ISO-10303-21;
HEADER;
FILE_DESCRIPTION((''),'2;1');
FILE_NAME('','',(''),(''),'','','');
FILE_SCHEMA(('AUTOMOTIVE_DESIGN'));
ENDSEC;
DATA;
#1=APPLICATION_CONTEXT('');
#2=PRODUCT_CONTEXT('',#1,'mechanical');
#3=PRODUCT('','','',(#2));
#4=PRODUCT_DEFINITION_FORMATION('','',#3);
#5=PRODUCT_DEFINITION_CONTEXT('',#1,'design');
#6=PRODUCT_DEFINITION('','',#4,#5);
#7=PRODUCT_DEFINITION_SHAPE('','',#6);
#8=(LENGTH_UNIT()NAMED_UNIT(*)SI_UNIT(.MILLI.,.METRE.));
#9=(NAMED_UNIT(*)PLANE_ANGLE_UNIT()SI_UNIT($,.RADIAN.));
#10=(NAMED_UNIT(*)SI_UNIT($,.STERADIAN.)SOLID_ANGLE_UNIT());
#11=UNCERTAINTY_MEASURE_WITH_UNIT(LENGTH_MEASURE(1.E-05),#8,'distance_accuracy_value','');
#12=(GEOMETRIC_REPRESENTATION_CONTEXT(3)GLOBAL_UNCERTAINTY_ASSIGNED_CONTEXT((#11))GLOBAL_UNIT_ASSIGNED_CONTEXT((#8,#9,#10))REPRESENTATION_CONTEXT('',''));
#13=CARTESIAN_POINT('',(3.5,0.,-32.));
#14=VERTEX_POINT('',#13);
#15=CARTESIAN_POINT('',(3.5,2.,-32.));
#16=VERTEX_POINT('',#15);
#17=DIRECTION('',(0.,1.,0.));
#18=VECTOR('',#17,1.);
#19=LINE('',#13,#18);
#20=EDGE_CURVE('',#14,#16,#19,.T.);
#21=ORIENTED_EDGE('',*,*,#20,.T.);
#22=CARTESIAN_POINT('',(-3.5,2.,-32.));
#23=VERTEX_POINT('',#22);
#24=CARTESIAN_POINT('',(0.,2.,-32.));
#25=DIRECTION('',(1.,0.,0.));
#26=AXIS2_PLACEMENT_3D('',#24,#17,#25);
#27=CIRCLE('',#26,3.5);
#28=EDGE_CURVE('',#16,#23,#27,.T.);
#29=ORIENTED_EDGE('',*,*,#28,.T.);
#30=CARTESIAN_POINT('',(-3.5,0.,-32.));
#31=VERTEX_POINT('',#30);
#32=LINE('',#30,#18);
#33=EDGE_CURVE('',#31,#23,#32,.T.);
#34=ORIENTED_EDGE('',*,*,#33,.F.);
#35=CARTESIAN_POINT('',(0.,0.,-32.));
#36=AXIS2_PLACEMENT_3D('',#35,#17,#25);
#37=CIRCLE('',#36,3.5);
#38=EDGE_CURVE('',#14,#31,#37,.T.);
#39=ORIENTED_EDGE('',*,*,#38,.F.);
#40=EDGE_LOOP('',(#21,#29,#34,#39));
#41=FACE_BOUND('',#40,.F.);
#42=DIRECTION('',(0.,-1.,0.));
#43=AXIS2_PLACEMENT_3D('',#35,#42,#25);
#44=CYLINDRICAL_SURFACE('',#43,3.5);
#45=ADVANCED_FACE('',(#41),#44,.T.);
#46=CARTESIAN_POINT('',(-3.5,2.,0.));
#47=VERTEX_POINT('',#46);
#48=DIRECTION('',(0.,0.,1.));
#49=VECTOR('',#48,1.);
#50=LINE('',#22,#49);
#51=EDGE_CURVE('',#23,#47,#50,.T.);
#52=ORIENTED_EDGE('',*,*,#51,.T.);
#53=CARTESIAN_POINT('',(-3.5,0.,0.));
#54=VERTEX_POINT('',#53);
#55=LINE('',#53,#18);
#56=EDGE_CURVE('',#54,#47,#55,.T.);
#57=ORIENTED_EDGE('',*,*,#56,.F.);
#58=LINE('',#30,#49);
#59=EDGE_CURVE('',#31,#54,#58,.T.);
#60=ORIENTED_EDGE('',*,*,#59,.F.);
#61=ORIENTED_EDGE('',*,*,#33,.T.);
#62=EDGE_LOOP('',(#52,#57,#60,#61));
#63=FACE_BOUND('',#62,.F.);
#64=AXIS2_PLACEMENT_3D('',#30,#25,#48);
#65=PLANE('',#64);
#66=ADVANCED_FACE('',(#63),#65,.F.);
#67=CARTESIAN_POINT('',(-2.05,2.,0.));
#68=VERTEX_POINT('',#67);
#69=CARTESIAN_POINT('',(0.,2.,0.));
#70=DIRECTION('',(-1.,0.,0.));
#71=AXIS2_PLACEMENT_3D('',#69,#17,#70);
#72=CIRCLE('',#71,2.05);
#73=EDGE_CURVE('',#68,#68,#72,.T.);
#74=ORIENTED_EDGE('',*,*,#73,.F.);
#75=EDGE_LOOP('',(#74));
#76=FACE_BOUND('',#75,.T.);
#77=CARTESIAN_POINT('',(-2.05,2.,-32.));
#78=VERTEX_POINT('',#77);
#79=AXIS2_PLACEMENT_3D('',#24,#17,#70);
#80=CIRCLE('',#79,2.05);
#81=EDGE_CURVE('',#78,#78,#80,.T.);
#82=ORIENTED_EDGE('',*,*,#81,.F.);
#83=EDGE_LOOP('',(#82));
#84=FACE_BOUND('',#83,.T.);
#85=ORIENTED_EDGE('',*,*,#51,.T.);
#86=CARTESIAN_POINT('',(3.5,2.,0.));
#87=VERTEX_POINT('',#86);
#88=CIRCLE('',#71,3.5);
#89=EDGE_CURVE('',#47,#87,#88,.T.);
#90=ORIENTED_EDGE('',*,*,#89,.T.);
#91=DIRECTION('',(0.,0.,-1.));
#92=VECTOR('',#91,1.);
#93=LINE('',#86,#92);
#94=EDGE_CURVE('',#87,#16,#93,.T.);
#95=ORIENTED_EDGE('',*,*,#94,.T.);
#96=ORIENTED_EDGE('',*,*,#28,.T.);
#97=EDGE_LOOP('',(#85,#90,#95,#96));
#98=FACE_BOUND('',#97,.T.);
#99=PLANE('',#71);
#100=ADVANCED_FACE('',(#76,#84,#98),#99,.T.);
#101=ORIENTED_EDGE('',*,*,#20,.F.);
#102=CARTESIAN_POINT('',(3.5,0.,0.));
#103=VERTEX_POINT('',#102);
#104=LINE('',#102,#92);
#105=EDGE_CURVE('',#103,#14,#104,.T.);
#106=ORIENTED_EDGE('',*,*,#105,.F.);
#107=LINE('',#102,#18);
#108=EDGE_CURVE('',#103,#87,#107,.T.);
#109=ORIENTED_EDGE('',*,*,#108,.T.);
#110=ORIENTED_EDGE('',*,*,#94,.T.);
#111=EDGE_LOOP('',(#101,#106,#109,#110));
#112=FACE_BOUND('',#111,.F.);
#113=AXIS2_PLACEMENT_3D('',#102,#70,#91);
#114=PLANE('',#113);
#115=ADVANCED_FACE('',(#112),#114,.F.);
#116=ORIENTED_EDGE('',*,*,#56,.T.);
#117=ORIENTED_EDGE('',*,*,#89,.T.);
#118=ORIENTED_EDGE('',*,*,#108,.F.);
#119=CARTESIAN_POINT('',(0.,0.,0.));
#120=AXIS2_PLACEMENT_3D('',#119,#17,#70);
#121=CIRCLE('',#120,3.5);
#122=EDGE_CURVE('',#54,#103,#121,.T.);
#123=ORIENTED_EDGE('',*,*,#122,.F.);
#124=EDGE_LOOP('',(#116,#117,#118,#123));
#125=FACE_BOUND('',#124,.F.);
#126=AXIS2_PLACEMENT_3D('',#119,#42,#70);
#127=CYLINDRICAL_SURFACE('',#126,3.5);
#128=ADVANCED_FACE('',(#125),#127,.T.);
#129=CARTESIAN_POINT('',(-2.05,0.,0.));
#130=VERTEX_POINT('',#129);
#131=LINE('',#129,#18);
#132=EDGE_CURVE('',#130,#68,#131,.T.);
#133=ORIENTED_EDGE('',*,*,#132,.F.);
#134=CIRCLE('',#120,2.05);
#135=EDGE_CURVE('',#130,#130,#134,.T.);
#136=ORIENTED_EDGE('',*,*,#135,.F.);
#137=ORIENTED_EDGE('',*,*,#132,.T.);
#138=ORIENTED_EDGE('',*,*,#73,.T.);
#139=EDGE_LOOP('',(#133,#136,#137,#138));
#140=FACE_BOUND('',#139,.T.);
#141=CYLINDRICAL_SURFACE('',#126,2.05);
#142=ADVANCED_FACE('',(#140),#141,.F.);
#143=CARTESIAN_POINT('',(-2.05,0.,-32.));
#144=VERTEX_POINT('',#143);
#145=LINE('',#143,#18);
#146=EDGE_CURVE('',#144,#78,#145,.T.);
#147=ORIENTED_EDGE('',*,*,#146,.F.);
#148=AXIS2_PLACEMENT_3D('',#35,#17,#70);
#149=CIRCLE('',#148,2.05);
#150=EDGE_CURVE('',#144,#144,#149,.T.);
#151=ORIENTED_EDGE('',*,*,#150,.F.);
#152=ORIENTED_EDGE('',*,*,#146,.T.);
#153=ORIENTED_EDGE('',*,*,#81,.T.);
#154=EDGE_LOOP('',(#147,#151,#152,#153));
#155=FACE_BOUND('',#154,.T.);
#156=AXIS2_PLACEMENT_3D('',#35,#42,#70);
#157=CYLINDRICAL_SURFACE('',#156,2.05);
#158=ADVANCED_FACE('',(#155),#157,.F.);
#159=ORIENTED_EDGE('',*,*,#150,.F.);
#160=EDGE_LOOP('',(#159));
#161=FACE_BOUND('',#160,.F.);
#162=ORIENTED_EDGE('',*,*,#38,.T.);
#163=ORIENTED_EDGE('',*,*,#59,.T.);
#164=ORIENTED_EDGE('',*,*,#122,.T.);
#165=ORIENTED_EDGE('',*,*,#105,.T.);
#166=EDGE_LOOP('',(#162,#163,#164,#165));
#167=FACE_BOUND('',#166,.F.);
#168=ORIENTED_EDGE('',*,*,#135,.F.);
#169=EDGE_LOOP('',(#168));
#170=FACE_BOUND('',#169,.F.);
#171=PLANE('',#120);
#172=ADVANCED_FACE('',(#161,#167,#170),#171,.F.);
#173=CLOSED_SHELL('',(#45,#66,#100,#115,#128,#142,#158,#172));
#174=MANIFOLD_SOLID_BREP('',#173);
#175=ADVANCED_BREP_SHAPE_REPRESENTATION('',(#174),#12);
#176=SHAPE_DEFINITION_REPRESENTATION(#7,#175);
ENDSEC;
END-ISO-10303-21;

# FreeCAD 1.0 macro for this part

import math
import FreeCAD as App
import Part
import Sketcher

V = App.Vector
Q = App.Units.Quantity

doc = App.newDocument("Part")
body = doc.addObject("PartDesign::Body", "Body")

# Sketch on XZ plane
sketch1 = doc.addObject("Sketcher::SketchObject", "Sketch")
body.addObject(sketch1)
sketch1.AttachmentSupport = (doc.XZ_Plane, [""])
sketch1.MapMode = "FlatFace"
sketch1.addGeometry([
    Part.ArcOfCircle(Part.Circle(V(0, 0, 0), V(0, 0, 1), 3.5), math.radians(0), math.radians(180)),  # 0
    Part.LineSegment(V(3.5, 0, 0), V(3.5, -32, 0)),  # 1
    Part.ArcOfCircle(Part.Circle(V(0, -32, 0), V(0, 0, 1), 3.5), math.radians(180), math.radians(360)),  # 2
    Part.LineSegment(V(-3.5, -32, 0), V(-3.5, 0, 0)),  # 3
    Part.Circle(V(0, -32, 0), V(0, 0, 1), 2),  # 4
    Part.Circle(V(0, 0, 0), V(0, 0, 1), 2),  # 5
], False)
sketch1.addConstraint([
    Sketcher.Constraint("Tangent", 0, 1, 1, 1),
    Sketcher.Constraint("Tangent", 1, 2, 2, 2),
    Sketcher.Constraint("Tangent", 2, 1, 3, 1),
    Sketcher.Constraint("Tangent", 3, 2, 0, 2),
    Sketcher.Constraint("Vertical", 1),
    Sketcher.Constraint("Vertical", 3),
    Sketcher.Constraint("Coincident", 0, 3, -1, 1),
    Sketcher.Constraint("Coincident", 5, 3, -1, 1),
    Sketcher.Constraint("Coincident", 4, 3, 2, 3),
    Sketcher.Constraint("Equal", 4, 5),
    Sketcher.Constraint("Diameter", 4, Q("4.1 mm")),
    Sketcher.Constraint("Radius", 0, Q("3.5 mm")),
    Sketcher.Constraint("DistanceY", 1, 2, 1, 1, Q("32 mm")),
])
pad1 = doc.addObject("PartDesign::Pad", "Pad")
body.addObject(pad1)
pad1.Profile = sketch1
pad1.Length = 2
pad1.Reversed = True

doc.recompute()
